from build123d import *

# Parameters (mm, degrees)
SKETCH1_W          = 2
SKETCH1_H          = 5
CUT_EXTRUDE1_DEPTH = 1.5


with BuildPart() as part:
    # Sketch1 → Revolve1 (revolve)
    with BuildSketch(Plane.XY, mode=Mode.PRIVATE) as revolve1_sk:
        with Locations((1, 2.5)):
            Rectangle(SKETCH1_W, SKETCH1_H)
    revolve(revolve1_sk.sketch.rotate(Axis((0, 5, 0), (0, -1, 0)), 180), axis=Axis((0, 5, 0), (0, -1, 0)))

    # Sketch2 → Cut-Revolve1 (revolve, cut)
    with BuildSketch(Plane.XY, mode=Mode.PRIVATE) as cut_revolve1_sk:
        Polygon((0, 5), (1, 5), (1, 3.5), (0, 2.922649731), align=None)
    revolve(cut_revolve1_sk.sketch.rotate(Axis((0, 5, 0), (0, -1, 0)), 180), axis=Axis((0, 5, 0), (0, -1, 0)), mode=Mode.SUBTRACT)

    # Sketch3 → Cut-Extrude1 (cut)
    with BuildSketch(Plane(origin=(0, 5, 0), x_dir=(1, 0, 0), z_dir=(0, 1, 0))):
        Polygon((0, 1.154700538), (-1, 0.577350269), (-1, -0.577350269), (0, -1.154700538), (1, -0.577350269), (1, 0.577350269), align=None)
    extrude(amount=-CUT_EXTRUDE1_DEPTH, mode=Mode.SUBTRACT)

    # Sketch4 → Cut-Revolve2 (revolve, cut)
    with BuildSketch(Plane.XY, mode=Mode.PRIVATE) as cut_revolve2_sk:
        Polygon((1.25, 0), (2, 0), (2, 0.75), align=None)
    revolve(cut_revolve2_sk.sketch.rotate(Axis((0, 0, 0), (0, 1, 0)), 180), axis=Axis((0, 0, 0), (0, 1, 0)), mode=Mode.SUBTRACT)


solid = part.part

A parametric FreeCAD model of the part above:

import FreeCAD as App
import Part
import Sketcher

V = App.Vector
Q = App.Units.Quantity


def add_polygon(sketch, points):
    """Adds a closed chain of lines whose ends are joined by coincident constraints."""
    first, n = sketch.GeometryCount, len(points)
    for a, b in zip(points, points[1:] + points[:1]):
        sketch.addGeometry(Part.LineSegment(App.Vector(*a, 0), App.Vector(*b, 0)), False)
    for i in range(n):
        sketch.addConstraint(Sketcher.Constraint("Coincident", first + i, 2, first + (i + 1) % n, 1))

doc = App.newDocument("Part")
params = doc.addObject("Spreadsheet::Sheet", "Params")
for row, (alias, value) in enumerate([
    ("sketch1_width", "2 mm"),
    ("sketch1_height", "5 mm"),
    ("revolution_angle", "360 deg"),
    ("sketch2_width", "1 mm"),
    ("sketch2_height", "1.5 mm"),
    ("groove_angle", "360 deg"),
    ("pocket1_length", "1.5 mm"),
    ("sketch4_width", "0.75 mm"),
    ("groove2_angle", "360 deg"),
], start=1):
    params.set(f"A{row}", alias)
    params.set(f"B{row}", "=" + value)
    params.setAlias(f"B{row}", alias)

body = doc.addObject("PartDesign::Body", "Body")

sketch1 = body.newObject("Sketcher::SketchObject", "Sketch")
sketch1.AttachmentSupport = (doc.getObject("XY_Plane"), [""])
sketch1.MapMode = "FlatFace"
add_polygon(sketch1, [(0, 5), (0, 0), (2, 0), (2, 5)])
sketch1.addConstraint(Sketcher.Constraint("Vertical", 0))
sketch1.addConstraint(Sketcher.Constraint("Horizontal", 1))
sketch1.addConstraint(Sketcher.Constraint("Vertical", 2))
sketch1.addConstraint(Sketcher.Constraint("Horizontal", 3))
sketch1.addConstraint(Sketcher.Constraint("Coincident", 0, 2, -1, 1))
sketch1.addConstraint(Sketcher.Constraint("DistanceX", 1, 1, 1, 2, Q("2 mm")))
sketch1.addConstraint(Sketcher.Constraint("DistanceY", 0, 2, 0, 1, Q("5 mm")))
sketch1.setExpression("Constraints[9]", "Params.sketch1_width")
sketch1.setExpression("Constraints[10]", "Params.sketch1_height")
revolution = body.newObject("PartDesign::Revolution", "Revolution")
revolution.Profile = sketch1
revolution.ReferenceAxis = (sketch1, ["V_Axis"])
revolution.setExpression("Angle", "Params.revolution_angle")

sketch2 = body.newObject("Sketcher::SketchObject", "Sketch001")
sketch2.AttachmentSupport = (doc.getObject("XY_Plane"), [""])
sketch2.MapMode = "FlatFace"
add_polygon(sketch2, [(1, 5), (0, 5), (0, 2.92265), (1, 3.5)])
sketch2.addConstraint(Sketcher.Constraint("Horizontal", 0))
sketch2.addConstraint(Sketcher.Constraint("Vertical", 1))
sketch2.addConstraint(Sketcher.Constraint("Vertical", 3))
sketch2.addConstraint(Sketcher.Constraint("PointOnObject", 0, 2, -2))
sketch2.addConstraint(Sketcher.Constraint("DistanceX", 0, 2, 0, 1, Q("1 mm")))
sketch2.addConstraint(Sketcher.Constraint("Angle", 2, Q("30 deg")))
sketch2.addConstraint(Sketcher.Constraint("DistanceY", 3, 1, 3, 2, Q("1.5 mm")))
sketch2.addConstraint(Sketcher.Constraint("DistanceY", -1, 1, 0, 2, Q("5 mm")))
sketch2.setExpression("Constraints[8]", "Params.sketch2_width")
sketch2.setExpression("Constraints[10]", "Params.sketch2_height")
groove = body.newObject("PartDesign::Groove", "Groove")
groove.Profile = sketch2
groove.ReferenceAxis = (sketch2, ["V_Axis"])
groove.setExpression("Angle", "Params.groove_angle")

sketch3 = body.newObject("Sketcher::SketchObject", "Sketch002")
sketch3.AttachmentSupport = (doc.getObject("XZ_Plane"), [""])
sketch3.MapMode = "FlatFace"
sketch3.AttachmentOffset = App.Placement(V(0, 0, -5), App.Rotation())
add_polygon(sketch3, [(0, -1.154701), (-1, -0.57735), (-1, 0.57735), (0, 1.154701), (1, 0.57735), (1, -0.57735)])
sketch3.addConstraint(Sketcher.Constraint("Vertical", 1))
sketch3.addConstraint(Sketcher.Constraint("Vertical", 4))
sketch3.addConstraint(Sketcher.Constraint("Symmetric", 0, 2, 3, 2, -1, 1))
sketch3.addConstraint(Sketcher.Constraint("Symmetric", 2, 2, 5, 2, -1, 1))
sketch3.addConstraint(Sketcher.Constraint("PointOnObject", 2, 2, -2))
sketch3.addConstraint(Sketcher.Constraint("Parallel", 2, 5))
sketch3.addConstraint(Sketcher.Constraint("Horizontal", 1, 2, 3, 2))
sketch3.addConstraint(Sketcher.Constraint("Angle", 0, Q("150 deg")))
sketch3.addConstraint(Sketcher.Constraint("DistanceX", 0, 2, -1, 1, Q("1 mm")))
sketch3.addConstraint(Sketcher.Constraint("DistanceY", 1, 1, 1, 2, Q("1.154701 mm")))
pocket1 = body.newObject("PartDesign::Pocket", "Pocket")
pocket1.Profile = sketch3
pocket1.setExpression("Length", "Params.pocket1_length")
pocket1.Reversed = True

sketch4 = body.newObject("Sketcher::SketchObject", "Sketch003")
sketch4.AttachmentSupport = (doc.getObject("XY_Plane"), [""])
sketch4.MapMode = "FlatFace"
add_polygon(sketch4, [(1.25, 0), (2, 0), (2, 0.75)])
sketch4.addConstraint(Sketcher.Constraint("Horizontal", 0))
sketch4.addConstraint(Sketcher.Constraint("Vertical", 1))
sketch4.addConstraint(Sketcher.Constraint("PointOnObject", 0, 2, -1))
sketch4.addConstraint(Sketcher.Constraint("Equal", 0, 1))
sketch4.addConstraint(Sketcher.Constraint("DistanceX", -1, 1, 0, 2, Q("2 mm")))
sketch4.addConstraint(Sketcher.Constraint("DistanceX", 0, 1, 0, 2, Q("0.75 mm")))
sketch4.setExpression("Constraints[8]", "Params.sketch4_width")
groove2 = body.newObject("PartDesign::Groove", "Groove001")
groove2.Profile = sketch4
groove2.ReferenceAxis = (sketch4, ["V_Axis"])
groove2.setExpression("Angle", "Params.groove2_angle")

doc.recompute()
